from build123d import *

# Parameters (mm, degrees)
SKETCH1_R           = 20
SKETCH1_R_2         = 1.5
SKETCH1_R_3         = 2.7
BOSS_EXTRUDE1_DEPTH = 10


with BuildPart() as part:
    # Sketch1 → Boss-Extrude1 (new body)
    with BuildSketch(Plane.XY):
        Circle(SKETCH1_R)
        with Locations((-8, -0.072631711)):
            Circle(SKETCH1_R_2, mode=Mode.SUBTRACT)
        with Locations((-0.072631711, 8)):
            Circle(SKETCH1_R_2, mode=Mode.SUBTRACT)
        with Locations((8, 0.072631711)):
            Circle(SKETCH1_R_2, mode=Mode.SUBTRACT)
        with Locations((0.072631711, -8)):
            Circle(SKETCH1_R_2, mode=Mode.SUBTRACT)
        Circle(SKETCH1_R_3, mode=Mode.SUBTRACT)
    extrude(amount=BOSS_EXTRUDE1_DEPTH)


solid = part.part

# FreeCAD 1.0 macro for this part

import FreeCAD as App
import Part
import Sketcher
Q = App.Units.Quantity

doc = App.newDocument("Part")
body = doc.addObject("PartDesign::Body", "Body")

sketch1 = doc.addObject("Sketcher::SketchObject", "Sketch")
body.addObject(sketch1)
sketch1.AttachmentSupport = (doc.XY_Plane, [""])
sketch1.MapMode = "FlatFace"
sketch1.addGeometry([
    Part.Circle(App.Vector(0, 0, 0), App.Vector(0, 0, 1), 20),
    Part.Circle(App.Vector(-8, -0.1, 0), App.Vector(0, 0, 1), 1.5),
    Part.Circle(App.Vector(0.1, -8, 0), App.Vector(0, 0, 1), 1.5),
    Part.Circle(App.Vector(-0.1, 8, 0), App.Vector(0, 0, 1), 1.5),
    Part.Circle(App.Vector(0, 0, 0), App.Vector(0, 0, 1), 2.7),
    Part.Circle(App.Vector(8, 0.1, 0), App.Vector(0, 0, 1), 1.5),
], False)
sketch1.addConstraint([
    Sketcher.Constraint("Coincident", 0, 3, -1, 1),
    Sketcher.Constraint("Coincident", 4, 3, -1, 1),
    Sketcher.Constraint("Equal", 1, 2),
    Sketcher.Constraint("Equal", 2, 3),
    Sketcher.Constraint("Equal", 3, 5),
    Sketcher.Constraint("Symmetric", 2, 3, 3, 3, -1, 1),
    Sketcher.Constraint("Symmetric", 1, 3, 5, 3, -1, 1),
    Sketcher.Constraint("Diameter", 0, Q("40 mm")),
    Sketcher.Constraint("Diameter", 1, Q("3 mm")),
    Sketcher.Constraint("Diameter", 4, Q("5.4 mm")),
    Sketcher.Constraint("DistanceX", 1, 3, -1, 1, Q("8 mm")),
    Sketcher.Constraint("DistanceY", 2, 3, -1, 1, Q("8 mm")),
    Sketcher.Constraint("DistanceY", 1, 3, -1, 1, Q("0.072632 mm")),
    Sketcher.Constraint("DistanceX", -1, 1, 2, 3, Q("0.072632 mm")),
])
pad1 = doc.addObject("PartDesign::Pad", "Pad")
body.addObject(pad1)
pad1.Profile = sketch1
pad1.Length = 10

doc.recompute()
